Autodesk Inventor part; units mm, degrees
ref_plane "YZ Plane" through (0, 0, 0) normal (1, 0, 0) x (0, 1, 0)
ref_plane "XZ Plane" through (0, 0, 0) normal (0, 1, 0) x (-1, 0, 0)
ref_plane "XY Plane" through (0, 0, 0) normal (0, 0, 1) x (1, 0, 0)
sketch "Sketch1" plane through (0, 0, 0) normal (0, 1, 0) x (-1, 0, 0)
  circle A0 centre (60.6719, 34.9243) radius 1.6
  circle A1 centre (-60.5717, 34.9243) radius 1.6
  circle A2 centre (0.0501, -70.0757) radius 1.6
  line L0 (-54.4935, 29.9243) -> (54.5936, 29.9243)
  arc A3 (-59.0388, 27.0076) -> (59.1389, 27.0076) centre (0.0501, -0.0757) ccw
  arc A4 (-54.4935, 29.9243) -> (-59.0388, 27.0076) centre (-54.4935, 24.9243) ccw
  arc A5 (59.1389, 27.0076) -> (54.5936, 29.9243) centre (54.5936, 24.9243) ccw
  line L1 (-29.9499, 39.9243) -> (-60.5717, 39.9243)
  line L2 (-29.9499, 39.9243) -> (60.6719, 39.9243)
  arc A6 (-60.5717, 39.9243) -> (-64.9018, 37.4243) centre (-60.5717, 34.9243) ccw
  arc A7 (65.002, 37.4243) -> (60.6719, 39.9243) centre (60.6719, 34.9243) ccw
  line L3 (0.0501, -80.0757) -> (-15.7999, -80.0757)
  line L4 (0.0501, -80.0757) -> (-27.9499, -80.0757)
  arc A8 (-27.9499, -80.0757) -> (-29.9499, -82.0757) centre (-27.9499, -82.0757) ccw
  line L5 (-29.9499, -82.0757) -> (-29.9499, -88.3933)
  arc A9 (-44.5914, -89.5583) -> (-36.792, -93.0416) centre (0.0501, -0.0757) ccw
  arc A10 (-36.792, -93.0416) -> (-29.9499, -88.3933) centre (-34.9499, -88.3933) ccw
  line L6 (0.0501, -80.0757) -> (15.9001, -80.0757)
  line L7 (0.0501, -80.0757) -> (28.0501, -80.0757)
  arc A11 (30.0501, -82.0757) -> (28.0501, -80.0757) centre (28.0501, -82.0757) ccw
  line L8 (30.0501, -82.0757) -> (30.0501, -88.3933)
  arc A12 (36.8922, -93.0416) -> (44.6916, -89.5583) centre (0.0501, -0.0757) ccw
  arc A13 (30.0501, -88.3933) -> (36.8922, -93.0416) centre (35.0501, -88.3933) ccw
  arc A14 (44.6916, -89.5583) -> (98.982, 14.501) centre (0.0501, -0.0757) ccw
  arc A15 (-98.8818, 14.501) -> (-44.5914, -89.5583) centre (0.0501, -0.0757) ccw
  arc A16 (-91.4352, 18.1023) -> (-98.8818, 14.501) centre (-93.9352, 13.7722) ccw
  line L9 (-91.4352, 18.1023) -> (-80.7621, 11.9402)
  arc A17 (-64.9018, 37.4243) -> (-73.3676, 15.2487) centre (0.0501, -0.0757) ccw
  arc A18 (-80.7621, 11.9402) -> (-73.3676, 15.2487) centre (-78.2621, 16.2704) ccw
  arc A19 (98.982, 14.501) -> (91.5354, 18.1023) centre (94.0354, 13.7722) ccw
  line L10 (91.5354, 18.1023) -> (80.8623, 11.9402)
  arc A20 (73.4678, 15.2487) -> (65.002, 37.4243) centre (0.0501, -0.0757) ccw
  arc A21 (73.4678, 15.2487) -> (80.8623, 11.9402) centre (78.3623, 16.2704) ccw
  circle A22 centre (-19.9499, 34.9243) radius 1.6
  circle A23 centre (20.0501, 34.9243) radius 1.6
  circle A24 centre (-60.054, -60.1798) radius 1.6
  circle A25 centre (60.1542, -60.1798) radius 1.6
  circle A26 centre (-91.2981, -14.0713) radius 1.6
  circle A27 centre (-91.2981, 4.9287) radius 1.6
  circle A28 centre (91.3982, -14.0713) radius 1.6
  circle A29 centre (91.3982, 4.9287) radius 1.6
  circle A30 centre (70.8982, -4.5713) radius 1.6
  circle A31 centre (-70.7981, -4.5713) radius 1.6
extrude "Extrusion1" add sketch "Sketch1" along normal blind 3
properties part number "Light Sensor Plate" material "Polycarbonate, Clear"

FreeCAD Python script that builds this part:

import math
import FreeCAD as App
import Part
import Sketcher

V = App.Vector
Q = App.Units.Quantity

doc = App.newDocument("Part")
body = doc.addObject("PartDesign::Body", "Body")

# Sketch on XZ plane
sketch1 = doc.addObject("Sketcher::SketchObject", "Sketch")
body.addObject(sketch1)
sketch1.AttachmentSupport = (doc.XZ_Plane, [""])
sketch1.MapMode = "FlatFace"
sketch1.addGeometry(Part.LineSegment(V(-60.7, 39.9, 0), V(60.6, 39.9, 0)), False)
sketch1.addGeometry(Part.ArcOfCircle(Part.Circle(V(60.6, 34.9, 0), V(0, 0, 1), 5), math.radians(30), math.radians(90)), False)
sketch1.addGeometry(Part.ArcOfCircle(Part.Circle(V(-0.1, -0.1, 0), V(0, 0, 1), 75), math.radians(11.79), math.radians(30)), False)
sketch1.addGeometry(Part.ArcOfCircle(Part.Circle(V(78.3, 16.3, 0), V(0, 0, 1), 5), math.radians(-168), math.radians(-60)), False)
sketch1.addGeometry(Part.LineSegment(V(80.8, 11.9, 0), V(91.4, 18.1, 0)), False)
sketch1.addGeometry(Part.ArcOfCircle(Part.Circle(V(93.9, 13.8, 0), V(0, 0, 1), 5), math.radians(8), math.radians(120)), False)
sketch1.addGeometry(Part.ArcOfCircle(Part.Circle(V(-0.1, -0.1, 0), V(0, 0, 1), 100), math.radians(-63), math.radians(8)), False)
sketch1.addGeometry(Part.ArcOfCircle(Part.Circle(V(-0.1, -0.1, 0), V(0, 0, 1), 100), math.radians(-68.38), math.radians(-63.49)), False)
sketch1.addGeometry(Part.ArcOfCircle(Part.Circle(V(34.9, -88.4, 0), V(0, 0, 1), 5), math.radians(180), math.radians(292)), False)
sketch1.addGeometry(Part.LineSegment(V(29.9, -88.4, 0), V(29.9, -82.1, 0)), False)
sketch1.addGeometry(Part.ArcOfCircle(Part.Circle(V(27.9, -82.1, 0), V(0, 0, 1), 2), math.radians(0), math.radians(90)), False)
sketch1.addGeometry(Part.LineSegment(V(27.9, -80.1, 0), V(-28.1, -80.1, 0)), False)
sketch1.addGeometry(Part.ArcOfCircle(Part.Circle(V(-28.1, -82.1, 0), V(0, 0, 1), 2), math.radians(90), math.radians(180)), False)
sketch1.addGeometry(Part.LineSegment(V(-30.1, -82.1, 0), V(-30.1, -88.4, 0)), False)
sketch1.addGeometry(Part.ArcOfCircle(Part.Circle(V(-35.1, -88.4, 0), V(0, 0, 1), 5), math.radians(-112), math.radians(0)), False)
sketch1.addGeometry(Part.ArcOfCircle(Part.Circle(V(-0.1, -0.1, 0), V(0, 0, 1), 100), math.radians(-116.51), math.radians(-111.62)), False)
sketch1.addGeometry(Part.ArcOfCircle(Part.Circle(V(-0.1, -0.1, 0), V(0, 0, 1), 100), math.radians(172), math.radians(243)), False)
sketch1.addGeometry(Part.ArcOfCircle(Part.Circle(V(-94, 13.8, 0), V(0, 0, 1), 5), math.radians(60), math.radians(172)), False)
sketch1.addGeometry(Part.LineSegment(V(-91.5, 18.1, 0), V(-80.9, 11.9, 0)), False)
sketch1.addGeometry(Part.ArcOfCircle(Part.Circle(V(-78.4, 16.3, 0), V(0, 0, 1), 5), math.radians(-120), math.radians(-12)), False)
sketch1.addGeometry(Part.ArcOfCircle(Part.Circle(V(-0.1, -0.1, 0), V(0, 0, 1), 75), math.radians(150), math.radians(168.21)), False)
sketch1.addGeometry(Part.ArcOfCircle(Part.Circle(V(-60.7, 34.9, 0), V(0, 0, 1), 5), math.radians(90), math.radians(150)), False)
sketch1.addGeometry(Part.Circle(V(60.1, -60.2, 0), V(0, 0, 1), 1.6), False)
sketch1.addGeometry(Part.Circle(V(-0.1, -70.1, 0), V(0, 0, 1), 1.6), False)
sketch1.addGeometry(Part.Circle(V(-60.2, -60.2, 0), V(0, 0, 1), 1.6), False)
sketch1.addGeometry(Part.Circle(V(91.3, -14.1, 0), V(0, 0, 1), 1.6), False)
sketch1.addGeometry(Part.Circle(V(91.3, 4.9, 0), V(0, 0, 1), 1.6), False)
sketch1.addGeometry(Part.Circle(V(70.8, -4.6, 0), V(0, 0, 1), 1.6), False)
sketch1.addGeometry(Part.ArcOfCircle(Part.Circle(V(54.5, 24.9, 0), V(0, 0, 1), 5), math.radians(25), math.radians(90)), False)
sketch1.addGeometry(Part.LineSegment(V(54.5, 29.9, 0), V(-54.6, 29.9, 0)), False)
sketch1.addGeometry(Part.ArcOfCircle(Part.Circle(V(-54.6, 24.9, 0), V(0, 0, 1), 5), math.radians(90), math.radians(155)), False)
sketch1.addGeometry(Part.ArcOfCircle(Part.Circle(V(-0.1, -0.1, 0), V(0, 0, 1), 65), math.radians(155), math.radians(385)), False)
sketch1.addGeometry(Part.Circle(V(60.6, 34.9, 0), V(0, 0, 1), 1.6), False)
sketch1.addGeometry(Part.Circle(V(19.9, 34.9, 0), V(0, 0, 1), 1.6), False)
sketch1.addGeometry(Part.Circle(V(-91.4, -14.1, 0), V(0, 0, 1), 1.6), False)
sketch1.addGeometry(Part.Circle(V(-70.9, -4.6, 0), V(0, 0, 1), 1.6), False)
sketch1.addGeometry(Part.Circle(V(-91.4, 4.9, 0), V(0, 0, 1), 1.6), False)
sketch1.addGeometry(Part.Circle(V(-20.1, 34.9, 0), V(0, 0, 1), 1.6), False)
sketch1.addGeometry(Part.Circle(V(-60.7, 34.9, 0), V(0, 0, 1), 1.6), False)
sketch1.addConstraint(Sketcher.Constraint("Tangent", 0, 2, 1, 2))
sketch1.addConstraint(Sketcher.Constraint("Tangent", 1, 1, 2, 2))
sketch1.addConstraint(Sketcher.Constraint("Tangent", 2, 1, 3, 1))
sketch1.addConstraint(Sketcher.Constraint("Tangent", 3, 2, 4, 1))
sketch1.addConstraint(Sketcher.Constraint("Tangent", 4, 2, 5, 2))
sketch1.addConstraint(Sketcher.Constraint("Tangent", 5, 1, 6, 2))
sketch1.addConstraint(Sketcher.Constraint("Tangent", 6, 1, 7, 2))
sketch1.addConstraint(Sketcher.Constraint("Tangent", 7, 1, 8, 2))
sketch1.addConstraint(Sketcher.Constraint("Tangent", 8, 1, 9, 1))
sketch1.addConstraint(Sketcher.Constraint("Tangent", 9, 2, 10, 1))
sketch1.addConstraint(Sketcher.Constraint("Tangent", 10, 2, 11, 1))
sketch1.addConstraint(Sketcher.Constraint("Tangent", 11, 2, 12, 1))
sketch1.addConstraint(Sketcher.Constraint("Tangent", 12, 2, 13, 1))
sketch1.addConstraint(Sketcher.Constraint("Tangent", 13, 2, 14, 2))
sketch1.addConstraint(Sketcher.Constraint("Tangent", 14, 1, 15, 2))
sketch1.addConstraint(Sketcher.Constraint("Tangent", 15, 1, 16, 2))
sketch1.addConstraint(Sketcher.Constraint("Tangent", 16, 1, 17, 2))
sketch1.addConstraint(Sketcher.Constraint("Tangent", 17, 1, 18, 1))
sketch1.addConstraint(Sketcher.Constraint("Tangent", 18, 2, 19, 1))
sketch1.addConstraint(Sketcher.Constraint("Tangent", 19, 2, 20, 2))
sketch1.addConstraint(Sketcher.Constraint("Tangent", 20, 1, 21, 2))
sketch1.addConstraint(Sketcher.Constraint("Tangent", 21, 1, 0, 1))
sketch1.addConstraint(Sketcher.Constraint("Tangent", 28, 2, 29, 1))
sketch1.addConstraint(Sketcher.Constraint("Tangent", 29, 2, 30, 1))
sketch1.addConstraint(Sketcher.Constraint("Tangent", 30, 2, 31, 1))
sketch1.addConstraint(Sketcher.Constraint("Tangent", 31, 2, 28, 1))
sketch1.addConstraint(Sketcher.Constraint("Horizontal", 0))
sketch1.addConstraint(Sketcher.Constraint("Vertical", 9))
sketch1.addConstraint(Sketcher.Constraint("Horizontal", 11))
sketch1.addConstraint(Sketcher.Constraint("Vertical", 13))
sketch1.addConstraint(Sketcher.Constraint("Horizontal", 29))
sketch1.addConstraint(Sketcher.Constraint("Coincident", 6, 3, 2, 3))
sketch1.addConstraint(Sketcher.Constraint("Coincident", 15, 3, 2, 3))
sketch1.addConstraint(Sketcher.Constraint("Coincident", 20, 3, 2, 3))
sketch1.addConstraint(Sketcher.Constraint("Coincident", 31, 3, 2, 3))
sketch1.addConstraint(Sketcher.Constraint("Coincident", 32, 3, 1, 3))
sketch1.addConstraint(Sketcher.Constraint("Coincident", 38, 3, 21, 3))
sketch1.addConstraint(Sketcher.Constraint("Equal", 1, 3))
sketch1.addConstraint(Sketcher.Constraint("Equal", 3, 5))
sketch1.addConstraint(Sketcher.Constraint("Equal", 6, 7))
sketch1.addConstraint(Sketcher.Constraint("Equal", 5, 8))
sketch1.addConstraint(Sketcher.Constraint("Equal", 10, 12))
sketch1.addConstraint(Sketcher.Constraint("Equal", 8, 14))
sketch1.addConstraint(Sketcher.Constraint("Equal", 7, 15))
sketch1.addConstraint(Sketcher.Constraint("Equal", 15, 16))
sketch1.addConstraint(Sketcher.Constraint("Equal", 14, 17))
sketch1.addConstraint(Sketcher.Constraint("Equal", 17, 19))
sketch1.addConstraint(Sketcher.Constraint("Equal", 2, 20))
sketch1.addConstraint(Sketcher.Constraint("Equal", 19, 21))
sketch1.addConstraint(Sketcher.Constraint("Equal", 22, 23))
sketch1.addConstraint(Sketcher.Constraint("Equal", 23, 24))
sketch1.addConstraint(Sketcher.Constraint("Equal", 24, 25))
sketch1.addConstraint(Sketcher.Constraint("Equal", 25, 26))
sketch1.addConstraint(Sketcher.Constraint("Equal", 26, 27))
sketch1.addConstraint(Sketcher.Constraint("Equal", 21, 28))
sketch1.addConstraint(Sketcher.Constraint("Equal", 28, 30))
sketch1.addConstraint(Sketcher.Constraint("Equal", 27, 32))
sketch1.addConstraint(Sketcher.Constraint("Equal", 32, 33))
sketch1.addConstraint(Sketcher.Constraint("Equal", 33, 34))
sketch1.addConstraint(Sketcher.Constraint("Equal", 34, 35))
sketch1.addConstraint(Sketcher.Constraint("Equal", 35, 36))
sketch1.addConstraint(Sketcher.Constraint("Equal", 36, 37))
sketch1.addConstraint(Sketcher.Constraint("Equal", 37, 38))
sketch1.addConstraint(Sketcher.Constraint("Horizontal", 8, 3, 14, 3))
sketch1.addConstraint(Sketcher.Constraint("Horizontal", 5, 3, 17, 3))
sketch1.addConstraint(Sketcher.Constraint("Horizontal", 3, 3, 19, 3))
sketch1.addConstraint(Sketcher.Constraint("Horizontal", 22, 3, 24, 3))
sketch1.addConstraint(Sketcher.Constraint("Horizontal", 32, 3, 33, 3))
sketch1.addConstraint(Sketcher.Constraint("Horizontal", 25, 3, 34, 3))
sketch1.addConstraint(Sketcher.Constraint("Horizontal", 27, 3, 35, 3))
sketch1.addConstraint(Sketcher.Constraint("Horizontal", 26, 3, 36, 3))
sketch1.addConstraint(Sketcher.Constraint("Horizontal", 33, 3, 37, 3))
sketch1.addConstraint(Sketcher.Constraint("Horizontal", 6, 1, 15, 1))
sketch1.addConstraint(Sketcher.Constraint("Vertical", 20, 3, 23, 3))
sketch1.addConstraint(Sketcher.Constraint("Vertical", 25, 3, 26, 3))
sketch1.addConstraint(Sketcher.Constraint("Vertical", 34, 3, 36, 3))
sketch1.addConstraint(Sketcher.Constraint("Radius", 1, 5.0))
sketch1.addConstraint(Sketcher.Constraint("Radius", 2, 75.0))
sketch1.addConstraint(Sketcher.Constraint("Radius", 6, 100.0))
sketch1.addConstraint(Sketcher.Constraint("Radius", 10, 2.0))
sketch1.addConstraint(Sketcher.Constraint("Radius", 31, 65.0))
sketch1.addConstraint(Sketcher.Constraint("Diameter", 22, 3.2))
sketch1.addConstraint(Sketcher.Constraint("DistanceX", 11, 2, 11, 1, 56.0))
sketch1.addConstraint(Sketcher.Constraint("Angle", 4, Q("30 deg")))
sketch1.addConstraint(Sketcher.Constraint("DistanceY", 2, 3, 1, 3, 35.0))
sketch1.addConstraint(Sketcher.Constraint("DistanceY", 10, 3, 2, 3, 82.0))
sketch1.addConstraint(Sketcher.Constraint("DistanceY", 10, 3, 23, 3, 12.0))
sketch1.addConstraint(Sketcher.Constraint("DistanceY", 25, 3, 26, 3, 19.0))
sketch1.addConstraint(Sketcher.Constraint("DistanceY", 28, 3, 1, 3, 10.0))
sketch1.addConstraint(Sketcher.Constraint("DistanceX", 2, 3, 33, 3, 20.0))
sketch1.addConstraint(Sketcher.Constraint("DistanceX", 37, 3, 33, 3, 40.0))
sketch1.addConstraint(Sketcher.Constraint("DistanceX", 27, 3, 25, 3, 20.5))
sketch1.addConstraint(Sketcher.Constraint("DistanceY", 25, 3, 27, 3, 9.5))
sketch1.addConstraint(Sketcher.Constraint("DistanceX", 34, 3, 35, 3, 20.5))
sketch1.addConstraint(Sketcher.Constraint("DistanceX", 2, 3, -1, 1, 0.05))
sketch1.addConstraint(Sketcher.Constraint("DistanceY", 27, 3, 2, 1, 19.82))
sketch1.addConstraint(Sketcher.Constraint("DistanceX", -1, 1, 3, 3, 78.262))
sketch1.addConstraint(Sketcher.Constraint("DistanceX", -1, 1, 22, 3, 60.054))
sketch1.addConstraint(Sketcher.Constraint("DistanceX", -1, 1, 25, 3, 91.298))
sketch1.addConstraint(Sketcher.Constraint("DistanceY", -1, 1, 5, 1, 14.501))
sketch1.addConstraint(Sketcher.Constraint("DistanceY", 10, 3, 22, 3, 21.896))
sketch1.addConstraint(Sketcher.Constraint("DistanceX", 24, 3, 14, 3, 25.104))
sketch1.addConstraint(Sketcher.Constraint("DistanceX", 34, 3, 19, 3, 13.036))
sketch1.addConstraint(Sketcher.Constraint("DistanceY", 6, 1, 8, 3, 1.165))
pad1 = doc.addObject("PartDesign::Pad", "Pad")
body.addObject(pad1)
pad1.Profile = sketch1
pad1.Length = 3
pad1.Reversed = True

doc.recompute()
